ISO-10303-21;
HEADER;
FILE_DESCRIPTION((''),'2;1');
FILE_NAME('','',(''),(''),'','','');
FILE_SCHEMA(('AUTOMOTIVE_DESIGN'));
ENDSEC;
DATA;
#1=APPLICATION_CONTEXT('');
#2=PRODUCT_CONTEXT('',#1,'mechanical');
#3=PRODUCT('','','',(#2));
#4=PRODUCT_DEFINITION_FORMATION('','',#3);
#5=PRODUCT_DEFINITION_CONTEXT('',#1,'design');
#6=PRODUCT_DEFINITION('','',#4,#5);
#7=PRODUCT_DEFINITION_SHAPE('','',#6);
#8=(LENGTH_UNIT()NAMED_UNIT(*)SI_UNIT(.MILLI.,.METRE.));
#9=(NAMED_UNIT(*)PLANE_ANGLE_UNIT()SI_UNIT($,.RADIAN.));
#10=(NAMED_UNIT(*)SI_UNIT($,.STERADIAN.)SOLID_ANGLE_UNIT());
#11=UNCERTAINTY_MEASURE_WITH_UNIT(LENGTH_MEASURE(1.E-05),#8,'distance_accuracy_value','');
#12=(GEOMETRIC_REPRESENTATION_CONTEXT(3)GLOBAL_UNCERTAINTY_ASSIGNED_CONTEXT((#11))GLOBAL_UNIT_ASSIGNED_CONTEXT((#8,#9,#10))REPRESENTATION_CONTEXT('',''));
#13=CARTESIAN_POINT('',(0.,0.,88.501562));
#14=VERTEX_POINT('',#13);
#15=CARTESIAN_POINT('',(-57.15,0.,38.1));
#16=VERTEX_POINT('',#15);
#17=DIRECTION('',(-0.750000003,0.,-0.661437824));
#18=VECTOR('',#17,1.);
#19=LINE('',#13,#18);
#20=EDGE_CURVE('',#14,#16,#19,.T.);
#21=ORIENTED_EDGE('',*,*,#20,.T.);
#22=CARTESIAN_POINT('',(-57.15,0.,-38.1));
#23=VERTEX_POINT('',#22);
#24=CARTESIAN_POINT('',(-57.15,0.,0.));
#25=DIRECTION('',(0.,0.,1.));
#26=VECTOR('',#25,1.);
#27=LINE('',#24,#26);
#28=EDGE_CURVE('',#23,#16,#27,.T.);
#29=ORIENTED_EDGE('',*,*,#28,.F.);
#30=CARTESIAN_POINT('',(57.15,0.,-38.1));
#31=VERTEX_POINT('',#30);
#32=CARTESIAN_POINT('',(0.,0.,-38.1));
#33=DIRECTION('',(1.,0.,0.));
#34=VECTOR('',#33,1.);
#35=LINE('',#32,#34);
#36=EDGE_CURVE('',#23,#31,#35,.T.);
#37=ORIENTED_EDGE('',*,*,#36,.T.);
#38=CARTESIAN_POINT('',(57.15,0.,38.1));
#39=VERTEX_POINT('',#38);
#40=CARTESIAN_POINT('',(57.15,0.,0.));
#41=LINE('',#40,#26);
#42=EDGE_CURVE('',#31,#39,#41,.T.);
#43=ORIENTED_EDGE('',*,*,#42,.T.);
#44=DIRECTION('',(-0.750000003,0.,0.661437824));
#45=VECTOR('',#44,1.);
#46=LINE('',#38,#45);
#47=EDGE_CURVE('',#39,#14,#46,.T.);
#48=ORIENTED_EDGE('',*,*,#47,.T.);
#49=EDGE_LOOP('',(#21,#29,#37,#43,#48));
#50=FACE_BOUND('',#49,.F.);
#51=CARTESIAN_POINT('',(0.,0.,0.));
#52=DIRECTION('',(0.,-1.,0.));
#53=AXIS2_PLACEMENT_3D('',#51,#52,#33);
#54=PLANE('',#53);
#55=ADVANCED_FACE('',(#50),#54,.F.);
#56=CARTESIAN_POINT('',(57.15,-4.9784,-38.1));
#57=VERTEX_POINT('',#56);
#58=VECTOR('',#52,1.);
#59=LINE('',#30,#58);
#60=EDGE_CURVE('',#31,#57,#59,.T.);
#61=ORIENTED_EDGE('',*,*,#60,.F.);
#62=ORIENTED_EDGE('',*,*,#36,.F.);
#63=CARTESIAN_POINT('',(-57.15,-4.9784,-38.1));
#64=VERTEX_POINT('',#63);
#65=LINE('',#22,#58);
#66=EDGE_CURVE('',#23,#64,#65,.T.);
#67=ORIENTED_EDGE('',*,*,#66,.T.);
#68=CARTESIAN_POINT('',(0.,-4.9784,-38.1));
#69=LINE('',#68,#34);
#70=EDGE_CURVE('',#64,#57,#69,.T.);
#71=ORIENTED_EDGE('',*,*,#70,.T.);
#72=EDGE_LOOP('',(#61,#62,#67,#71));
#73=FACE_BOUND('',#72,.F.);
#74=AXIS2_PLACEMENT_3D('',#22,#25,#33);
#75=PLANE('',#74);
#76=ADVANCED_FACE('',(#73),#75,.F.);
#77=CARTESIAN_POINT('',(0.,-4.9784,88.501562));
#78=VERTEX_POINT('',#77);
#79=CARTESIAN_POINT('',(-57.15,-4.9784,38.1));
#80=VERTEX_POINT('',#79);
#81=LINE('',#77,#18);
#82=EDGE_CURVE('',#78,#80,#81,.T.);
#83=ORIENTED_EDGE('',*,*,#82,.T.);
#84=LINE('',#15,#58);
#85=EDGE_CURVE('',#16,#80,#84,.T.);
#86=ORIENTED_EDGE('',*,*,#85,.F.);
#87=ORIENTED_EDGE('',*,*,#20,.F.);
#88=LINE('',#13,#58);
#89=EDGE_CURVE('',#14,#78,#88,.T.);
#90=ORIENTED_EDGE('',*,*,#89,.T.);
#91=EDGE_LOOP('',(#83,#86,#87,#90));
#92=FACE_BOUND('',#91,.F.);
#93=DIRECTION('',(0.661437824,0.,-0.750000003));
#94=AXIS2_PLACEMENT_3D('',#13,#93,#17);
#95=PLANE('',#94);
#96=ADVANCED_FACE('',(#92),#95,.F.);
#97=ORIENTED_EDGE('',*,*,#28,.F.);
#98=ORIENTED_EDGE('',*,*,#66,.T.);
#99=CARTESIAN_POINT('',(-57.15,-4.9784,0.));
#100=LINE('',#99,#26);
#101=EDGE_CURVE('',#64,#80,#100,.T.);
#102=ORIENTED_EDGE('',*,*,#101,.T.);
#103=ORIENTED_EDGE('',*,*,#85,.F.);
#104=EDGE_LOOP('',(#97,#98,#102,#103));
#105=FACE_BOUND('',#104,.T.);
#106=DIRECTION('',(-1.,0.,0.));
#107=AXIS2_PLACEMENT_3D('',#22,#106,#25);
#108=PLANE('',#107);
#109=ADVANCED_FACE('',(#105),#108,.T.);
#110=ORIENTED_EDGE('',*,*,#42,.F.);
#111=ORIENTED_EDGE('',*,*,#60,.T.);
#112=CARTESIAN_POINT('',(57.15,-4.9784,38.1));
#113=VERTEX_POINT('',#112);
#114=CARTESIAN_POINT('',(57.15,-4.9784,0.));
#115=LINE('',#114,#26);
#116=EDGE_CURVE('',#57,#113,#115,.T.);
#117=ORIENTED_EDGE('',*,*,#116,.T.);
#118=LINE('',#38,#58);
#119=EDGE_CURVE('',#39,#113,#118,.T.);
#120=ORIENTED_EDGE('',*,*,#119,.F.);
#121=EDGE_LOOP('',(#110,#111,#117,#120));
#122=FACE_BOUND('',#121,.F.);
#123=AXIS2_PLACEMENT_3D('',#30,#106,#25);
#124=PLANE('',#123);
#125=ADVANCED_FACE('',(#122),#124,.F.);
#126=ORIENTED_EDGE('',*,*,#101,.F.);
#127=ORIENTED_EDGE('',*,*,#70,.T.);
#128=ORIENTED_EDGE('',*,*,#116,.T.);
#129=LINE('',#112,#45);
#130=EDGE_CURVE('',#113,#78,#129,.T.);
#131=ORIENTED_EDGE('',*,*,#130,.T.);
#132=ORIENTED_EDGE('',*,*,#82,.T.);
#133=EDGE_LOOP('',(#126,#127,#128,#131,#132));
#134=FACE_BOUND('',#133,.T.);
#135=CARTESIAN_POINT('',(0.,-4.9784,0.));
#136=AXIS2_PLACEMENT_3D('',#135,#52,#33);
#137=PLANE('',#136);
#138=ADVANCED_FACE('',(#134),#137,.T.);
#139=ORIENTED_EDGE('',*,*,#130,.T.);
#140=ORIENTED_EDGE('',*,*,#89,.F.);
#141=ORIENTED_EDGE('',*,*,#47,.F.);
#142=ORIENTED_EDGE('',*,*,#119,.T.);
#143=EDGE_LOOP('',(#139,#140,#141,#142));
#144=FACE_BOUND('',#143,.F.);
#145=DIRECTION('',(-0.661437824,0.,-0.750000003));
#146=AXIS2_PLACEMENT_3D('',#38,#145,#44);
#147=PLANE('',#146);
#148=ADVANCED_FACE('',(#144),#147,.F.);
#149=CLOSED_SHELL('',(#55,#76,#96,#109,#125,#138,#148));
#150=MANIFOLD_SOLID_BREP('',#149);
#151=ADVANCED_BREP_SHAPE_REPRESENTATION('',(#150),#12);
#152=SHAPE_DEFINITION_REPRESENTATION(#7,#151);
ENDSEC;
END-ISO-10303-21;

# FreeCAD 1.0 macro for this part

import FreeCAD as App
import Part
import Sketcher

V = App.Vector
Q = App.Units.Quantity


def add_polygon(sketch, points):
    """Adds a closed chain of lines whose ends are joined by coincident constraints."""
    first, n = sketch.GeometryCount, len(points)
    for a, b in zip(points, points[1:] + points[:1]):
        sketch.addGeometry(Part.LineSegment(App.Vector(*a, 0), App.Vector(*b, 0)), False)
    for i in range(n):
        sketch.addConstraint(Sketcher.Constraint("Coincident", first + i, 2, first + (i + 1) % n, 1))

doc = App.newDocument("Part")
body = doc.addObject("PartDesign::Body", "Body")

sketch1 = doc.addObject("Sketcher::SketchObject", "Sketch")
body.addObject(sketch1)
sketch1.AttachmentSupport = (doc.XZ_Plane, [""])
sketch1.MapMode = "FlatFace"
add_polygon(sketch1, [(-57.15, 38.1), (-57.15, -38.1), (57.15, -38.1), (57.15, 38.1), (0, 88.501562)])
sketch1.addConstraint([
    Sketcher.Constraint("Vertical", 0),
    Sketcher.Constraint("Horizontal", 1),
    Sketcher.Constraint("Vertical", 2),
    Sketcher.Constraint("Symmetric", 0, 2, 2, 2, -1, 1),
    Sketcher.Constraint("PointOnObject", 3, 2, -2),
    Sketcher.Constraint("Horizontal", 2, 2, 4, 2),
    Sketcher.Constraint("DistanceY", 0, 2, 0, 1, Q("3 in")),
    Sketcher.Constraint("Distance", 3, Q("3 in")),
    Sketcher.Constraint("DistanceX", 1, 1, 1, 2, Q("4.5 in")),
])
pad1 = doc.addObject("PartDesign::Pad", "Pad")
body.addObject(pad1)
pad1.Profile = sketch1
pad1.Length = Q("0.196 in")

doc.recompute()
